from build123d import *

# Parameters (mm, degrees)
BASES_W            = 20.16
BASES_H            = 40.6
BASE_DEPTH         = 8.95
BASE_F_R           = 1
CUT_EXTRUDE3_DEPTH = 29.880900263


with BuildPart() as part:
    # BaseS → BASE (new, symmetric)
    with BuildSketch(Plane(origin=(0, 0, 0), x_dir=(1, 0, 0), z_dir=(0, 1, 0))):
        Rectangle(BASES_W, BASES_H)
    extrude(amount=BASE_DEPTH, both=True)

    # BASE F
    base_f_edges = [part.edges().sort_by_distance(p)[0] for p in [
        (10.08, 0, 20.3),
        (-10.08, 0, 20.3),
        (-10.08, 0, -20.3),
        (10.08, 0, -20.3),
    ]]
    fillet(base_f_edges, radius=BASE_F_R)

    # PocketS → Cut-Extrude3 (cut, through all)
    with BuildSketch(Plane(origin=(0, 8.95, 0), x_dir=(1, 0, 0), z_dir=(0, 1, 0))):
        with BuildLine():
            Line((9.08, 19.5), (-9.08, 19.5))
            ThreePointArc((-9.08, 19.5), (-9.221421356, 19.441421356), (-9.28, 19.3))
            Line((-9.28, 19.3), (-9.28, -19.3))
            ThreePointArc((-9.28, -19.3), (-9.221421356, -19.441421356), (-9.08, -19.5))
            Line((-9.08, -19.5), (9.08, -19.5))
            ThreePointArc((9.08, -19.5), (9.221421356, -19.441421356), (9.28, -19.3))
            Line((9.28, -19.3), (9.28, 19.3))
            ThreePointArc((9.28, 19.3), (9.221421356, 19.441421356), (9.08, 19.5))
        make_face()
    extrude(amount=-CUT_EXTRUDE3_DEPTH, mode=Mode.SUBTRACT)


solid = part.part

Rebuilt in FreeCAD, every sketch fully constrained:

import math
import FreeCAD as App
import Part
import Sketcher

V = App.Vector
Q = App.Units.Quantity


def edges_at(feature, points):
    """Names of the edges that pass closest to the given points."""
    edges = feature.Shape.Edges
    near = lambda p: min(range(len(edges)), key=lambda i: edges[i].distToShape(Part.Vertex(*p))[0])
    return sorted({f"Edge{near(p) + 1}" for p in points})

doc = App.newDocument("Part")
params = doc.addObject("Spreadsheet::Sheet", "Params")
for row, (alias, value) in enumerate([
    ("sketch1_height", "40.6 mm"),
    ("sketch1_width", "20.16 mm"),
    ("pad1_length", "17.9 mm"),
    ("fillet_radius", "1 mm"),
    ("sketch2_radius", "0.2 mm"),
    ("sketch2_height", "38.6 mm"),
    ("sketch2_width", "18.16 mm"),
], start=1):
    params.set(f"A{row}", alias)
    params.set(f"B{row}", "=" + value)
    params.setAlias(f"B{row}", alias)

body = doc.addObject("PartDesign::Body", "Body")

sketch1 = body.newObject("Sketcher::SketchObject", "Sketch")
sketch1.AttachmentSupport = (doc.getObject("XZ_Plane"), [""])
sketch1.MapMode = "FlatFace"
sketch1.addGeometry(Part.LineSegment(V(-10, -20, 0), V(-10, 20, 0)), False)
sketch1.addGeometry(Part.LineSegment(V(-10, 20, 0), V(10, 20, 0)), False)
sketch1.addGeometry(Part.LineSegment(V(10, 20, 0), V(10, -20, 0)), False)
sketch1.addGeometry(Part.LineSegment(V(10, -20, 0), V(-10, -20, 0)), False)
sketch1.addConstraint(Sketcher.Constraint("Coincident", 0, 2, 1, 1))
sketch1.addConstraint(Sketcher.Constraint("Coincident", 1, 2, 2, 1))
sketch1.addConstraint(Sketcher.Constraint("Coincident", 2, 2, 3, 1))
sketch1.addConstraint(Sketcher.Constraint("Coincident", 3, 2, 0, 1))
sketch1.addConstraint(Sketcher.Constraint("Vertical", 0))
sketch1.addConstraint(Sketcher.Constraint("Horizontal", 1))
sketch1.addConstraint(Sketcher.Constraint("Vertical", 2))
sketch1.addConstraint(Sketcher.Constraint("Horizontal", 3))
sketch1.addConstraint(Sketcher.Constraint("Symmetric", 0, 2, 2, 2, -1, 1))
sketch1.addConstraint(Sketcher.Constraint("DistanceY", 0, 1, 0, 2, Q("40.6 mm")))
sketch1.addConstraint(Sketcher.Constraint("DistanceX", 1, 1, 1, 2, Q("20.16 mm")))
sketch1.setExpression("Constraints[9]", "Params.sketch1_height")
sketch1.setExpression("Constraints[10]", "Params.sketch1_width")
pad1 = body.newObject("PartDesign::Pad", "Pad")
pad1.Profile = sketch1
pad1.setExpression("Length", "Params.pad1_length")
pad1.Midplane = True
doc.recompute()

fillet = body.newObject("PartDesign::Fillet", "Fillet")
fillet.Base = (pad1, edges_at(pad1, [
    (10.08, 0, 20.3),
    (-10.08, 0, 20.3),
    (-10.08, 0, -20.3),
    (10.08, 0, -20.3),
]))
fillet.setExpression("Radius", "Params.fillet_radius")

sketch2 = body.newObject("Sketcher::SketchObject", "Sketch001")
sketch2.AttachmentSupport = (doc.getObject("XZ_Plane"), [""])
sketch2.MapMode = "FlatFace"
sketch2.AttachmentOffset = App.Placement(V(0, 0, -8.95), App.Rotation())
sketch2.addGeometry(Part.LineSegment(V(9.08, -19.5, 0), V(-9.08, -19.5, 0)), False)
sketch2.addGeometry(Part.ArcOfCircle(Part.Circle(V(-9.08, -19.3, 0), V(0, 0, 1), 0.2), math.radians(-180), math.radians(-90)), False)
sketch2.addGeometry(Part.LineSegment(V(-9.28, -19.3, 0), V(-9.28, 19.3, 0)), False)
sketch2.addGeometry(Part.ArcOfCircle(Part.Circle(V(-9.08, 19.3, 0), V(0, 0, 1), 0.2), math.radians(90), math.radians(180)), False)
sketch2.addGeometry(Part.LineSegment(V(-9.08, 19.5, 0), V(9.08, 19.5, 0)), False)
sketch2.addGeometry(Part.ArcOfCircle(Part.Circle(V(9.08, 19.3, 0), V(0, 0, 1), 0.2), math.radians(0), math.radians(90)), False)
sketch2.addGeometry(Part.LineSegment(V(9.28, 19.3, 0), V(9.28, -19.3, 0)), False)
sketch2.addGeometry(Part.ArcOfCircle(Part.Circle(V(9.08, -19.3, 0), V(0, 0, 1), 0.2), math.radians(-90), math.radians(0)), False)
sketch2.addConstraint(Sketcher.Constraint("Tangent", 0, 2, 1, 2))
sketch2.addConstraint(Sketcher.Constraint("Tangent", 1, 1, 2, 1))
sketch2.addConstraint(Sketcher.Constraint("Tangent", 2, 2, 3, 2))
sketch2.addConstraint(Sketcher.Constraint("Tangent", 3, 1, 4, 1))
sketch2.addConstraint(Sketcher.Constraint("Tangent", 4, 2, 5, 2))
sketch2.addConstraint(Sketcher.Constraint("Tangent", 5, 1, 6, 1))
sketch2.addConstraint(Sketcher.Constraint("Tangent", 6, 2, 7, 2))
sketch2.addConstraint(Sketcher.Constraint("Tangent", 7, 1, 0, 1))
sketch2.addConstraint(Sketcher.Constraint("Horizontal", 0))
sketch2.addConstraint(Sketcher.Constraint("Vertical", 2))
sketch2.addConstraint(Sketcher.Constraint("Horizontal", 4))
sketch2.addConstraint(Sketcher.Constraint("Vertical", 6))
sketch2.addConstraint(Sketcher.Constraint("Equal", 1, 3))
sketch2.addConstraint(Sketcher.Constraint("Equal", 3, 5))
sketch2.addConstraint(Sketcher.Constraint("Equal", 5, 7))
sketch2.addConstraint(Sketcher.Constraint("Symmetric", 1, 3, 5, 3, -1, 1))
sketch2.addConstraint(Sketcher.Constraint("Radius", 1, Q("0.2 mm")))
sketch2.addConstraint(Sketcher.Constraint("DistanceY", 2, 1, 2, 2, Q("38.6 mm")))
sketch2.addConstraint(Sketcher.Constraint("DistanceX", 0, 2, 0, 1, Q("18.16 mm")))
sketch2.setExpression("Constraints[16]", "Params.sketch2_radius")
sketch2.setExpression("Constraints[17]", "Params.sketch2_height")
sketch2.setExpression("Constraints[18]", "Params.sketch2_width")
pocket1 = body.newObject("PartDesign::Pocket", "Pocket")
pocket1.Profile = sketch2
pocket1.Type = "ThroughAll"
pocket1.Reversed = True

doc.recompute()
